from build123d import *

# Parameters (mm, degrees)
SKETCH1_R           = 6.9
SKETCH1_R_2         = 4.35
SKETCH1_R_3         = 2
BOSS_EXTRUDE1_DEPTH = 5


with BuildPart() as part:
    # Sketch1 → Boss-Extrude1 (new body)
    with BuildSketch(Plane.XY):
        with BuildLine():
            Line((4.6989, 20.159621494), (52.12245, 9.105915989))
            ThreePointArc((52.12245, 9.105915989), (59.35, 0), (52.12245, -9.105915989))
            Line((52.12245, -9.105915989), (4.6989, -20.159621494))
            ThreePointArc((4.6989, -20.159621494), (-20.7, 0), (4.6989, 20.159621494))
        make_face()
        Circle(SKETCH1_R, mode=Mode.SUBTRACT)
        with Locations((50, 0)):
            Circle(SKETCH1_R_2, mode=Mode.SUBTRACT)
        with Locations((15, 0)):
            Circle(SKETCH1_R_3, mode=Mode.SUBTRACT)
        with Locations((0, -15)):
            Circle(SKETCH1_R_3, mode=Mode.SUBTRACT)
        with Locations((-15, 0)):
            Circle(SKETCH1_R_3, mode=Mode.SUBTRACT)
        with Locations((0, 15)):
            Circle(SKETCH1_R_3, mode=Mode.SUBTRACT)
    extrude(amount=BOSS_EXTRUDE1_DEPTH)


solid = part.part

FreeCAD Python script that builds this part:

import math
import FreeCAD as App
import Part
import Sketcher

doc = App.newDocument("Part")
body = doc.addObject("PartDesign::Body", "Body")

sketch1 = body.newObject("Sketcher::SketchObject", "Sketch")
sketch1.AttachmentSupport = (doc.getObject("XY_Plane"), [""])
sketch1.MapMode = "FlatFace"
sketch1.addGeometry([
    Part.LineSegment(App.Vector(52.12245, 9.105916, 0), App.Vector(4.6989, 20.159621, 0)),
    Part.ArcOfCircle(Part.Circle(App.Vector(0, 0, 0), App.Vector(0, 0, 1), 20.7), math.radians(76.879487), math.radians(283.120513)),
    Part.LineSegment(App.Vector(4.6989, -20.159621, 0), App.Vector(52.12245, -9.105916, 0)),
    Part.ArcOfCircle(Part.Circle(App.Vector(50, 0, 0), App.Vector(0, 0, 1), 9.35), math.radians(-76.879487), math.radians(76.879487)),
    Part.Circle(App.Vector(0, -15, 0), App.Vector(0, 0, 1), 2),
    Part.Circle(App.Vector(50, 0, 0), App.Vector(0, 0, 1), 4.35),
    Part.Circle(App.Vector(15, 0, 0), App.Vector(0, 0, 1), 2),
    Part.Circle(App.Vector(0, 0, 0), App.Vector(0, 0, 1), 6.9),
    Part.Circle(App.Vector(-15, 0, 0), App.Vector(0, 0, 1), 2),
    Part.Circle(App.Vector(0, 15, 0), App.Vector(0, 0, 1), 2),
], False)
sketch1.addConstraint([
    Sketcher.Constraint("Tangent", 0, 2, 1, 1),
    Sketcher.Constraint("Tangent", 1, 2, 2, 1),
    Sketcher.Constraint("Tangent", 2, 2, 3, 1),
    Sketcher.Constraint("Tangent", 3, 2, 0, 1),
    Sketcher.Constraint("Coincident", 1, 3, -1, 1),
    Sketcher.Constraint("Coincident", 7, 3, -1, 1),
    Sketcher.Constraint("Coincident", 5, 3, 3, 3),
    Sketcher.Constraint("Equal", 4, 6),
    Sketcher.Constraint("Equal", 6, 8),
    Sketcher.Constraint("Equal", 8, 9),
    Sketcher.Constraint("Symmetric", 6, 3, 8, 3, -1, 1),
    Sketcher.Constraint("Symmetric", 4, 3, 9, 3, -1, 1),
    Sketcher.Constraint("PointOnObject", 3, 3, -1),
    Sketcher.Constraint("PointOnObject", 4, 3, -2),
    Sketcher.Constraint("PointOnObject", 6, 3, -1),
    Sketcher.Constraint("Diameter", 4, 4.0),
    Sketcher.Constraint("Diameter", 5, 8.7),
    Sketcher.Constraint("Diameter", 7, 13.8),
    Sketcher.Constraint("Radius", 1, 20.7),
    Sketcher.Constraint("Radius", 3, 9.35),
    Sketcher.Constraint("DistanceX", -1, 1, 3, 3, 50.0),
    Sketcher.Constraint("DistanceY", 4, 3, -1, 1, 15.0),
    Sketcher.Constraint("DistanceX", -1, 1, 6, 3, 15.0),
])
pad1 = body.newObject("PartDesign::Pad", "Pad")
pad1.Profile = sketch1
pad1.Length = 5

doc.recompute()
